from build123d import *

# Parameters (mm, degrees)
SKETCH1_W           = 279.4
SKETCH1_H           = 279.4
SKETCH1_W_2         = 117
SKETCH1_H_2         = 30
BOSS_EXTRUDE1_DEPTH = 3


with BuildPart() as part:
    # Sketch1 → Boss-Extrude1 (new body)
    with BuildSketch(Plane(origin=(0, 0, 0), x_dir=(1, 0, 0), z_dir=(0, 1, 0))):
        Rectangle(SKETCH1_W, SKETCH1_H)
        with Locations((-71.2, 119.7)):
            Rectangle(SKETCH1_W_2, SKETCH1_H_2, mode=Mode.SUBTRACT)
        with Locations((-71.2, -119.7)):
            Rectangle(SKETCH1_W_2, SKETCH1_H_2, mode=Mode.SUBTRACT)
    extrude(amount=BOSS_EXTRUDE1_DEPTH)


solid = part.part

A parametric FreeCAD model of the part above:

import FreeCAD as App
import Part
import Sketcher


def add_polygon(sketch, points):
    """Adds a closed chain of lines whose ends are joined by coincident constraints."""
    first, n = sketch.GeometryCount, len(points)
    for a, b in zip(points, points[1:] + points[:1]):
        sketch.addGeometry(Part.LineSegment(App.Vector(*a, 0), App.Vector(*b, 0)), False)
    for i in range(n):
        sketch.addConstraint(Sketcher.Constraint("Coincident", first + i, 2, first + (i + 1) % n, 1))

doc = App.newDocument("Part")
body = doc.addObject("PartDesign::Body", "Body")

# Sketch on XZ plane
sketch1 = doc.addObject("Sketcher::SketchObject", "Sketch")
body.addObject(sketch1)
sketch1.AttachmentSupport = (doc.XZ_Plane, [""])
sketch1.MapMode = "FlatFace"
add_polygon(sketch1, [(-139.7, -139.7), (-139.7, 139.7), (139.7, 139.7), (139.7, -139.7)])  # lines 0-3
add_polygon(sketch1, [(-12.7, 134.7), (-129.7, 134.7), (-129.7, 104.7), (-12.7, 104.7)])  # lines 4-7
add_polygon(sketch1, [(-12.7, -104.7), (-129.7, -104.7), (-129.7, -134.7), (-12.7, -134.7)])  # lines 8-11
sketch1.addConstraint([
    Sketcher.Constraint("Vertical", 0),
    Sketcher.Constraint("Horizontal", 1),
    Sketcher.Constraint("Vertical", 2),
    Sketcher.Constraint("Horizontal", 3),
    Sketcher.Constraint("Horizontal", 4),
    Sketcher.Constraint("Vertical", 5),
    Sketcher.Constraint("Horizontal", 6),
    Sketcher.Constraint("Vertical", 7),
    Sketcher.Constraint("Horizontal", 8),
    Sketcher.Constraint("Vertical", 9),
    Sketcher.Constraint("Horizontal", 10),
    Sketcher.Constraint("Vertical", 11),
    Sketcher.Constraint("Symmetric", 0, 2, 2, 2, -1, 1),
    Sketcher.Constraint("Symmetric", 5, 2, 8, 2, -1),
    Sketcher.Constraint("Symmetric", 7, 2, 10, 2, -1),
    Sketcher.Constraint("Equal", 3, 0),
    Sketcher.Constraint("DistanceX", 4, 2, 4, 1, 117.0),
    Sketcher.Constraint("DistanceY", 5, 2, 5, 1, 30.0),
    Sketcher.Constraint("DistanceX", 1, 1, 1, 2, 279.4),
    Sketcher.Constraint("DistanceX", 0, 2, 4, 2, 10.0),
    Sketcher.Constraint("DistanceY", 4, 2, 0, 2, 5.0),
])
pad1 = doc.addObject("PartDesign::Pad", "Pad")
body.addObject(pad1)
pad1.Profile = sketch1
pad1.Length = 3
pad1.Reversed = True

doc.recompute()
